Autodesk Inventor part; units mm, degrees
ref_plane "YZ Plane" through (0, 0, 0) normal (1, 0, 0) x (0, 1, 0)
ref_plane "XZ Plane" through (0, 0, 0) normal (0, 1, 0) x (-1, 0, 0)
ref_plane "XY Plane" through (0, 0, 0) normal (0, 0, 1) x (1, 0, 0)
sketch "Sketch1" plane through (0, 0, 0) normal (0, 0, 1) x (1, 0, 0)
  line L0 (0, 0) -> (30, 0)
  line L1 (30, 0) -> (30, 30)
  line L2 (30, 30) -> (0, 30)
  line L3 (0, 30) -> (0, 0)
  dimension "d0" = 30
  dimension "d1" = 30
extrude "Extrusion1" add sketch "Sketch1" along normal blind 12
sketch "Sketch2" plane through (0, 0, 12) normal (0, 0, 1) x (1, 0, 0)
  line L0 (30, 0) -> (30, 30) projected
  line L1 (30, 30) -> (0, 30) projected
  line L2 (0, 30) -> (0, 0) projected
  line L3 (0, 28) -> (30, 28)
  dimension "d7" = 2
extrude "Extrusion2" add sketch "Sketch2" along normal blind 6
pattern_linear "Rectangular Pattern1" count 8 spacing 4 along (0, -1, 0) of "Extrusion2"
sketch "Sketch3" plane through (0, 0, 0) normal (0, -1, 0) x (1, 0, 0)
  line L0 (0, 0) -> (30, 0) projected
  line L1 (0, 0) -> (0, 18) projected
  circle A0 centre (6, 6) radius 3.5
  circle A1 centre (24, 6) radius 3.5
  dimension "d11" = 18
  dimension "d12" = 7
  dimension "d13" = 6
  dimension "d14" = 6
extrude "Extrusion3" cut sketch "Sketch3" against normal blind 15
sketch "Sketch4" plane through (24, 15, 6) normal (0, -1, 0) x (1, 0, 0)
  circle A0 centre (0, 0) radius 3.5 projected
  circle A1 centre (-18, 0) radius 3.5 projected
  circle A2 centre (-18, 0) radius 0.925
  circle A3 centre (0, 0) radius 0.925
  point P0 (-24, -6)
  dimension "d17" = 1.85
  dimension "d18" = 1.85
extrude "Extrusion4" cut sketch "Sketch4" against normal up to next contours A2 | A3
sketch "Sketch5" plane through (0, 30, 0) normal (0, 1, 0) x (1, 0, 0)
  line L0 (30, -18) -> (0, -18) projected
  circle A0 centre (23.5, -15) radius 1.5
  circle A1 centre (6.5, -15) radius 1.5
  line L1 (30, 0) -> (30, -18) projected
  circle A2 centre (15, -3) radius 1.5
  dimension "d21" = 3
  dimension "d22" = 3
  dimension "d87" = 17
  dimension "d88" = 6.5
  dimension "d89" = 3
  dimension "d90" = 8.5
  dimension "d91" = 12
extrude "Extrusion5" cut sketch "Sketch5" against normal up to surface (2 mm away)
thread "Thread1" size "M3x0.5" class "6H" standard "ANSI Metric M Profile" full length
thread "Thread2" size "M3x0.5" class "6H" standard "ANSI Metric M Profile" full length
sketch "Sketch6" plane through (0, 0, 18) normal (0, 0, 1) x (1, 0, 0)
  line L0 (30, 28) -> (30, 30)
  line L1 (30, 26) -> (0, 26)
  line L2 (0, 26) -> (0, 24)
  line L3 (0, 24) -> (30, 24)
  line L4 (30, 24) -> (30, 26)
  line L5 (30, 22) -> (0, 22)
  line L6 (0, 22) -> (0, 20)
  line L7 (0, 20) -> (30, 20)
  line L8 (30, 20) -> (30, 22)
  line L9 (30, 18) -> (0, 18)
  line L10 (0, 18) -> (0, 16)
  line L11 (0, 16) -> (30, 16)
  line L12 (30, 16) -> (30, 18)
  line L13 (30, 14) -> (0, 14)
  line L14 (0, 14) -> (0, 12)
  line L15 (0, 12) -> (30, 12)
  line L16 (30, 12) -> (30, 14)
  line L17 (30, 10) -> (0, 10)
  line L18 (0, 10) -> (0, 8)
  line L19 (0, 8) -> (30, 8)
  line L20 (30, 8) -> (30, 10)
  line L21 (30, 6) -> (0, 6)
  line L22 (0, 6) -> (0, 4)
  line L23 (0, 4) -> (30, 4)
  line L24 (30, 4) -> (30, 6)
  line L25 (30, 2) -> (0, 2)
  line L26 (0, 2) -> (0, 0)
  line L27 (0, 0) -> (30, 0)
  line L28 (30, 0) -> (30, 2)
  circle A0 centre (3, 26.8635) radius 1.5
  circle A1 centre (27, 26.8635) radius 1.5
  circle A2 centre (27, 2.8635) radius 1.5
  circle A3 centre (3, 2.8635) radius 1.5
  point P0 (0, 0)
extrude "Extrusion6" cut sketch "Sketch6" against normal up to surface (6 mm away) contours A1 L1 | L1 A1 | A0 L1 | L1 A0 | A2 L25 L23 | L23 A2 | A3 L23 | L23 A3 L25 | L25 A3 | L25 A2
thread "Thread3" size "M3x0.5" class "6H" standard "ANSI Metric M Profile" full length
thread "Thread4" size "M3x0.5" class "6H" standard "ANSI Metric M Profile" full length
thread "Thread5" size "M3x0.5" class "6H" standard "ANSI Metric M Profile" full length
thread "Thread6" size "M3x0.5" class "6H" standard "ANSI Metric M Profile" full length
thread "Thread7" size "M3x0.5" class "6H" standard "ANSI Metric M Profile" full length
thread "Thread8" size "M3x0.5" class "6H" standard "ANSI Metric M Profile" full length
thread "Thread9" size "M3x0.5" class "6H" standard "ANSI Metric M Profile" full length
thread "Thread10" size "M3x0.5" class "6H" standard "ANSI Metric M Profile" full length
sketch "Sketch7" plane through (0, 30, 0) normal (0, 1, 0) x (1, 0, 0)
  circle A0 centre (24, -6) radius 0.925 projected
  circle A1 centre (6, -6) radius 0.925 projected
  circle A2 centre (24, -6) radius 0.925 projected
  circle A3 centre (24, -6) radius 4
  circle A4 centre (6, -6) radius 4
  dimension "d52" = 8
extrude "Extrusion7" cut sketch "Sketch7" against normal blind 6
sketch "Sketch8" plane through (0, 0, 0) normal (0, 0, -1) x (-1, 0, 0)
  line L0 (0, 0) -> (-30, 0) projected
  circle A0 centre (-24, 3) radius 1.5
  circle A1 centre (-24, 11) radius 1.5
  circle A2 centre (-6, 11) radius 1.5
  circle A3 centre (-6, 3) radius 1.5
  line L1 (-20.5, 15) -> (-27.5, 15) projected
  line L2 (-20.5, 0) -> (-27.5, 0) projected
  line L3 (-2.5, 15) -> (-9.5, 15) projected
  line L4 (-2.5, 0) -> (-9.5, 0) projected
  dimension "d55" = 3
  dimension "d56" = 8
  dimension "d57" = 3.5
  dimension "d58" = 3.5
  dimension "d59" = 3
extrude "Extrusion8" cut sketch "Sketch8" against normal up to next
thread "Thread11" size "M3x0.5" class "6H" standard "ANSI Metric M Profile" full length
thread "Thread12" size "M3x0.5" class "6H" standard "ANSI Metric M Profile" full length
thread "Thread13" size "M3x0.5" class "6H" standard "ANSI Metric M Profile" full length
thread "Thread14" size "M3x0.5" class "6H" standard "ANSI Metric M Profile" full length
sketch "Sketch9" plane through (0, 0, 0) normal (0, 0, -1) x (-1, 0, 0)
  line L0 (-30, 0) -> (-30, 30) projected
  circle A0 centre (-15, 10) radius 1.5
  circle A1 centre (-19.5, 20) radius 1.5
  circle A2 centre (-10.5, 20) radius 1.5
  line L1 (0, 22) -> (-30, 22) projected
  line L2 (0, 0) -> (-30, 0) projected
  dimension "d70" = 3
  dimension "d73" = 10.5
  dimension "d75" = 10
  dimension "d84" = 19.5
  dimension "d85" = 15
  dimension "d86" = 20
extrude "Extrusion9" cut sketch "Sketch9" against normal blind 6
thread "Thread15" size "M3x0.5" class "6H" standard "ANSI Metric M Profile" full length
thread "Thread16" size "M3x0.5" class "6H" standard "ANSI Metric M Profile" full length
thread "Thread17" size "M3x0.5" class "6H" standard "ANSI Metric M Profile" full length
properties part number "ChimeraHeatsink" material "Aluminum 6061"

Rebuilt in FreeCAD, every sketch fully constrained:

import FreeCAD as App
import Part
import Sketcher

doc = App.newDocument("Part")
params = doc.addObject("Spreadsheet::Sheet", "Params")
for row, (alias, value) in enumerate([
    ("sketch1_width", "30 mm"),
    ("pad1_length", "12 mm"),
    ("sketch2_height", "2 mm"),
    ("sketch2_width", "30 mm"),
    ("pad2_length", "6 mm"),
    ("linearpattern_pitch", "4 mm"),
    ("sketch3_diameter", "7 mm"),
    ("pocket1_length", "15 mm"),
    ("sketch4_diameter", "1.85 mm"),
    ("sketch5_diameter", "3 mm"),
    ("pocket3_length", "2 mm"),
    ("sketch6_diameter", "3 mm"),
    ("pocket4_length", "6 mm"),
    ("sketch7_diameter", "8 mm"),
    ("sketch7_diameter2", "1.85 mm"),
    ("pocket5_length", "6 mm"),
    ("sketch8_diameter", "3 mm"),
    ("pocket6_length", "2.8377 mm"),
    ("sketch9_diameter", "3 mm"),
    ("pocket7_length", "6 mm"),
], start=1):
    params.set(f"A{row}", alias)
    params.set(f"B{row}", "=" + value)
    params.setAlias(f"B{row}", alias)

body = doc.addObject("PartDesign::Body", "Body")

# Sketch on XY plane
sketch1 = doc.addObject("Sketcher::SketchObject", "Sketch")
body.addObject(sketch1)
sketch1.AttachmentSupport = (doc.XY_Plane, [""])
sketch1.MapMode = "FlatFace"
sketch1.addGeometry([
    Part.LineSegment(App.Vector(0, 30, 0), App.Vector(0, 0, 0)),
    Part.LineSegment(App.Vector(0, 0, 0), App.Vector(30, 0, 0)),
    Part.LineSegment(App.Vector(30, 0, 0), App.Vector(30, 30, 0)),
    Part.LineSegment(App.Vector(30, 30, 0), App.Vector(0, 30, 0)),
], False)
sketch1.addConstraint([
    Sketcher.Constraint("Coincident", 0, 2, 1, 1),
    Sketcher.Constraint("Coincident", 1, 2, 2, 1),
    Sketcher.Constraint("Coincident", 2, 2, 3, 1),
    Sketcher.Constraint("Coincident", 3, 2, 0, 1),
    Sketcher.Constraint("Vertical", 0),
    Sketcher.Constraint("Horizontal", 1),
    Sketcher.Constraint("Vertical", 2),
    Sketcher.Constraint("Horizontal", 3),
    Sketcher.Constraint("Coincident", 0, 2, -1, 1),
    Sketcher.Constraint("Equal", 3, 0),
    Sketcher.Constraint("DistanceX", 1, 1, 1, 2, 30.0),
])
sketch1.setExpression("Constraints[10]", "Params.sketch1_width")
pad1 = doc.addObject("PartDesign::Pad", "Pad")
body.addObject(pad1)
pad1.Profile = sketch1
pad1.setExpression("Length", "Params.pad1_length")

# Sketch on XY plane
sketch2 = doc.addObject("Sketcher::SketchObject", "Sketch001")
body.addObject(sketch2)
sketch2.AttachmentSupport = (doc.XY_Plane, [""])
sketch2.MapMode = "FlatFace"
sketch2.AttachmentOffset = App.Placement(App.Vector(0, 0, 12), App.Rotation())
sketch2.addGeometry([
    Part.LineSegment(App.Vector(0, 28, 0), App.Vector(30, 28, 0)),
    Part.LineSegment(App.Vector(30, 28, 0), App.Vector(30, 30, 0)),
    Part.LineSegment(App.Vector(30, 30, 0), App.Vector(0, 30, 0)),
    Part.LineSegment(App.Vector(0, 30, 0), App.Vector(0, 28, 0)),
], False)
sketch2.addConstraint([
    Sketcher.Constraint("Coincident", 0, 2, 1, 1),
    Sketcher.Constraint("Coincident", 1, 2, 2, 1),
    Sketcher.Constraint("Coincident", 2, 2, 3, 1),
    Sketcher.Constraint("Coincident", 3, 2, 0, 1),
    Sketcher.Constraint("Horizontal", 0),
    Sketcher.Constraint("Vertical", 1),
    Sketcher.Constraint("Horizontal", 2),
    Sketcher.Constraint("Vertical", 3),
    Sketcher.Constraint("PointOnObject", 2, 2, -2),
    Sketcher.Constraint("DistanceY", 1, 1, 1, 2, 2.0),
    Sketcher.Constraint("DistanceX", 0, 1, 0, 2, 30.0),
    Sketcher.Constraint("DistanceY", -1, 1, 0, 2, 28.0),
])
sketch2.setExpression("Constraints[9]", "Params.sketch2_height")
sketch2.setExpression("Constraints[10]", "Params.sketch2_width")
pad2 = doc.addObject("PartDesign::Pad", "Pad001")
body.addObject(pad2)
pad2.Profile = sketch2
pad2.setExpression("Length", "Params.pad2_length")
doc.recompute()

linearpattern = doc.addObject("PartDesign::LinearPattern", "LinearPattern")
body.addObject(linearpattern)
linearpattern.Originals = [pad2]
linearpattern.Direction = (doc.Y_Axis, [""])
linearpattern.Mode = "offset"
linearpattern.setExpression("Offset", "Params.linearpattern_pitch")
linearpattern.Occurrences = 8
linearpattern.Reversed = True
body.Tip = linearpattern

# Sketch on XZ plane
sketch3 = doc.addObject("Sketcher::SketchObject", "Sketch002")
body.addObject(sketch3)
sketch3.AttachmentSupport = (doc.XZ_Plane, [""])
sketch3.MapMode = "FlatFace"
sketch3.addGeometry([
    Part.Circle(App.Vector(6, 6, 0), App.Vector(0, 0, 1), 3.5),
    Part.Circle(App.Vector(24, 6, 0), App.Vector(0, 0, 1), 3.5),
], False)
sketch3.addConstraint([
    Sketcher.Constraint("Equal", 0, 1),
    Sketcher.Constraint("Horizontal", 0, 3, 1, 3),
    Sketcher.Constraint("Diameter", 0, 7.0),
    Sketcher.Constraint("DistanceX", -1, 1, 0, 3, 6.0),
    Sketcher.Constraint("DistanceY", -1, 1, 0, 3, 6.0),
    Sketcher.Constraint("DistanceX", 0, 3, 1, 3, 18.0),
])
sketch3.setExpression("Constraints[2]", "Params.sketch3_diameter")
pocket1 = doc.addObject("PartDesign::Pocket", "Pocket")
body.addObject(pocket1)
pocket1.Profile = sketch3
pocket1.setExpression("Length", "Params.pocket1_length")

# Sketch on XZ plane
sketch4 = doc.addObject("Sketcher::SketchObject", "Sketch003")
body.addObject(sketch4)
sketch4.AttachmentSupport = (doc.XZ_Plane, [""])
sketch4.MapMode = "FlatFace"
sketch4.AttachmentOffset = App.Placement(App.Vector(0, 0, -15), App.Rotation())
sketch4.addGeometry([
    Part.Circle(App.Vector(6, 6, 0), App.Vector(0, 0, 1), 0.925),
    Part.Circle(App.Vector(24, 6, 0), App.Vector(0, 0, 1), 0.925),
], False)
sketch4.addConstraint([
    Sketcher.Constraint("Equal", 0, 1),
    Sketcher.Constraint("Horizontal", 0, 3, 1, 3),
    Sketcher.Constraint("Diameter", 0, 1.85),
    Sketcher.Constraint("DistanceX", -1, 1, 0, 3, 6.0),
    Sketcher.Constraint("DistanceY", -1, 1, 0, 3, 6.0),
    Sketcher.Constraint("DistanceX", -1, 1, 1, 3, 24.0),
])
sketch4.setExpression("Constraints[2]", "Params.sketch4_diameter")
pocket2 = doc.addObject("PartDesign::Pocket", "Pocket001")
body.addObject(pocket2)
pocket2.Profile = sketch4
pocket2.Type = "UpToFirst"

# Sketch on XZ plane
sketch5 = doc.addObject("Sketcher::SketchObject", "Sketch004")
body.addObject(sketch5)
sketch5.AttachmentSupport = (doc.XZ_Plane, [""])
sketch5.MapMode = "FlatFace"
sketch5.AttachmentOffset = App.Placement(App.Vector(0, 0, -30), App.Rotation())
sketch5.addGeometry([
    Part.Circle(App.Vector(23.5, 15, 0), App.Vector(0, 0, 1), 1.5),
    Part.Circle(App.Vector(6.5, 15, 0), App.Vector(0, 0, 1), 1.5),
    Part.Circle(App.Vector(15, 3, 0), App.Vector(0, 0, 1), 1.5),
], False)
sketch5.addConstraint([
    Sketcher.Constraint("Equal", 0, 1),
    Sketcher.Constraint("Equal", 1, 2),
    Sketcher.Constraint("Horizontal", 0, 3, 1, 3),
    Sketcher.Constraint("Diameter", 0, 3.0),
    Sketcher.Constraint("DistanceY", -1, 1, 2, 3, 3.0),
    Sketcher.Constraint("DistanceX", 1, 3, 0, 3, 17.0),
    Sketcher.Constraint("DistanceY", 2, 3, 0, 3, 12.0),
    Sketcher.Constraint("DistanceX", -1, 1, 1, 3, 6.5),
    Sketcher.Constraint("DistanceX", 2, 3, 0, 3, 8.5),
])
sketch5.setExpression("Constraints[3]", "Params.sketch5_diameter")
pocket3 = doc.addObject("PartDesign::Pocket", "Pocket002")
body.addObject(pocket3)
pocket3.Profile = sketch5
pocket3.setExpression("Length", "Params.pocket3_length")
pocket3.Reversed = True

# Sketch on XY plane
sketch6 = doc.addObject("Sketcher::SketchObject", "Sketch005")
body.addObject(sketch6)
sketch6.AttachmentSupport = (doc.XY_Plane, [""])
sketch6.MapMode = "FlatFace"
sketch6.AttachmentOffset = App.Placement(App.Vector(0, 0, 18), App.Rotation())
sketch6.addGeometry([
    Part.Circle(App.Vector(27, 26.8635, 0), App.Vector(0, 0, 1), 1.5),
    Part.Circle(App.Vector(3, 26.8635, 0), App.Vector(0, 0, 1), 1.5),
    Part.Circle(App.Vector(27, 2.8635, 0), App.Vector(0, 0, 1), 1.5),
    Part.Circle(App.Vector(3, 2.8635, 0), App.Vector(0, 0, 1), 1.5),
], False)
sketch6.addConstraint([
    Sketcher.Constraint("Equal", 0, 1),
    Sketcher.Constraint("Equal", 1, 2),
    Sketcher.Constraint("Equal", 2, 3),
    Sketcher.Constraint("Horizontal", 0, 3, 1, 3),
    Sketcher.Constraint("Horizontal", 2, 3, 3, 3),
    Sketcher.Constraint("Vertical", 0, 3, 2, 3),
    Sketcher.Constraint("Vertical", 1, 3, 3, 3),
    Sketcher.Constraint("Diameter", 0, 3.0),
    Sketcher.Constraint("DistanceX", -1, 1, 0, 3, 27.0),
    Sketcher.Constraint("DistanceX", -1, 1, 1, 3, 3.0),
    Sketcher.Constraint("DistanceY", 2, 3, 0, 3, 24.0),
    Sketcher.Constraint("DistanceY", -1, 1, 0, 3, 26.8635),
])
sketch6.setExpression("Constraints[7]", "Params.sketch6_diameter")
pocket4 = doc.addObject("PartDesign::Pocket", "Pocket003")
body.addObject(pocket4)
pocket4.Profile = sketch6
pocket4.setExpression("Length", "Params.pocket4_length")

# Sketch on XZ plane
sketch7 = doc.addObject("Sketcher::SketchObject", "Sketch006")
body.addObject(sketch7)
sketch7.AttachmentSupport = (doc.XZ_Plane, [""])
sketch7.MapMode = "FlatFace"
sketch7.AttachmentOffset = App.Placement(App.Vector(0, 0, -30), App.Rotation())
sketch7.addGeometry([
    Part.Circle(App.Vector(24, 6, 0), App.Vector(0, 0, 1), 4),
    Part.Circle(App.Vector(24, 6, 0), App.Vector(0, 0, 1), 0.925),
    Part.Circle(App.Vector(6, 6, 0), App.Vector(0, 0, 1), 4),
    Part.Circle(App.Vector(6, 6, 0), App.Vector(0, 0, 1), 0.925),
], False)
sketch7.addConstraint([
    Sketcher.Constraint("Coincident", 1, 3, 0, 3),
    Sketcher.Constraint("Coincident", 3, 3, 2, 3),
    Sketcher.Constraint("Equal", 0, 2),
    Sketcher.Constraint("Equal", 1, 3),
    Sketcher.Constraint("Horizontal", 1, 3, 2, 3),
    Sketcher.Constraint("Diameter", 0, 8.0),
    Sketcher.Constraint("Diameter", 1, 1.85),
    Sketcher.Constraint("DistanceX", -1, 1, 0, 3, 24.0),
    Sketcher.Constraint("DistanceY", -1, 1, 0, 3, 6.0),
    Sketcher.Constraint("DistanceX", -1, 1, 2, 3, 6.0),
])
sketch7.setExpression("Constraints[5]", "Params.sketch7_diameter")
sketch7.setExpression("Constraints[6]", "Params.sketch7_diameter2")
pocket5 = doc.addObject("PartDesign::Pocket", "Pocket004")
body.addObject(pocket5)
pocket5.Profile = sketch7
pocket5.setExpression("Length", "Params.pocket5_length")
pocket5.Reversed = True

# Sketch on XY plane
sketch8 = doc.addObject("Sketcher::SketchObject", "Sketch007")
body.addObject(sketch8)
sketch8.AttachmentSupport = (doc.XY_Plane, [""])
sketch8.MapMode = "FlatFace"
sketch8.addGeometry([
    Part.Circle(App.Vector(24, 3, 0), App.Vector(0, 0, 1), 1.5),
    Part.Circle(App.Vector(24, 11, 0), App.Vector(0, 0, 1), 1.5),
    Part.Circle(App.Vector(6, 11, 0), App.Vector(0, 0, 1), 1.5),
    Part.Circle(App.Vector(6, 3, 0), App.Vector(0, 0, 1), 1.5),
], False)
sketch8.addConstraint([
    Sketcher.Constraint("Equal", 0, 1),
    Sketcher.Constraint("Equal", 1, 2),
    Sketcher.Constraint("Equal", 2, 3),
    Sketcher.Constraint("Horizontal", 1, 3, 2, 3),
    Sketcher.Constraint("Horizontal", 0, 3, 3, 3),
    Sketcher.Constraint("Vertical", 0, 3, 1, 3),
    Sketcher.Constraint("Vertical", 2, 3, 3, 3),
    Sketcher.Constraint("Diameter", 0, 3.0),
    Sketcher.Constraint("DistanceY", -1, 1, 0, 3, 3.0),
    Sketcher.Constraint("DistanceY", 0, 3, 1, 3, 8.0),
    Sketcher.Constraint("DistanceX", -1, 1, 0, 3, 24.0),
    Sketcher.Constraint("DistanceX", -1, 1, 2, 3, 6.0),
])
sketch8.setExpression("Constraints[7]", "Params.sketch8_diameter")
pocket6 = doc.addObject("PartDesign::Pocket", "Pocket005")
body.addObject(pocket6)
pocket6.Profile = sketch8
pocket6.setExpression("Length", "Params.pocket6_length")
pocket6.Reversed = True

# Sketch on XY plane
sketch9 = doc.addObject("Sketcher::SketchObject", "Sketch008")
body.addObject(sketch9)
sketch9.AttachmentSupport = (doc.XY_Plane, [""])
sketch9.MapMode = "FlatFace"
sketch9.addGeometry([
    Part.Circle(App.Vector(15, 10, 0), App.Vector(0, 0, 1), 1.5),
    Part.Circle(App.Vector(19.5, 20, 0), App.Vector(0, 0, 1), 1.5),
    Part.Circle(App.Vector(10.5, 20, 0), App.Vector(0, 0, 1), 1.5),
], False)
sketch9.addConstraint([
    Sketcher.Constraint("Equal", 0, 1),
    Sketcher.Constraint("Equal", 1, 2),
    Sketcher.Constraint("Horizontal", 1, 3, 2, 3),
    Sketcher.Constraint("Diameter", 0, 3.0),
    Sketcher.Constraint("DistanceX", -1, 1, 0, 3, 15.0),
    Sketcher.Constraint("DistanceY", -1, 1, 0, 3, 10.0),
    Sketcher.Constraint("DistanceY", -1, 1, 1, 3, 20.0),
    Sketcher.Constraint("DistanceX", -1, 1, 1, 3, 19.5),
    Sketcher.Constraint("DistanceX", -1, 1, 2, 3, 10.5),
])
sketch9.setExpression("Constraints[3]", "Params.sketch9_diameter")
pocket7 = doc.addObject("PartDesign::Pocket", "Pocket006")
body.addObject(pocket7)
pocket7.Profile = sketch9
pocket7.setExpression("Length", "Params.pocket7_length")
pocket7.Reversed = True

doc.recompute()
